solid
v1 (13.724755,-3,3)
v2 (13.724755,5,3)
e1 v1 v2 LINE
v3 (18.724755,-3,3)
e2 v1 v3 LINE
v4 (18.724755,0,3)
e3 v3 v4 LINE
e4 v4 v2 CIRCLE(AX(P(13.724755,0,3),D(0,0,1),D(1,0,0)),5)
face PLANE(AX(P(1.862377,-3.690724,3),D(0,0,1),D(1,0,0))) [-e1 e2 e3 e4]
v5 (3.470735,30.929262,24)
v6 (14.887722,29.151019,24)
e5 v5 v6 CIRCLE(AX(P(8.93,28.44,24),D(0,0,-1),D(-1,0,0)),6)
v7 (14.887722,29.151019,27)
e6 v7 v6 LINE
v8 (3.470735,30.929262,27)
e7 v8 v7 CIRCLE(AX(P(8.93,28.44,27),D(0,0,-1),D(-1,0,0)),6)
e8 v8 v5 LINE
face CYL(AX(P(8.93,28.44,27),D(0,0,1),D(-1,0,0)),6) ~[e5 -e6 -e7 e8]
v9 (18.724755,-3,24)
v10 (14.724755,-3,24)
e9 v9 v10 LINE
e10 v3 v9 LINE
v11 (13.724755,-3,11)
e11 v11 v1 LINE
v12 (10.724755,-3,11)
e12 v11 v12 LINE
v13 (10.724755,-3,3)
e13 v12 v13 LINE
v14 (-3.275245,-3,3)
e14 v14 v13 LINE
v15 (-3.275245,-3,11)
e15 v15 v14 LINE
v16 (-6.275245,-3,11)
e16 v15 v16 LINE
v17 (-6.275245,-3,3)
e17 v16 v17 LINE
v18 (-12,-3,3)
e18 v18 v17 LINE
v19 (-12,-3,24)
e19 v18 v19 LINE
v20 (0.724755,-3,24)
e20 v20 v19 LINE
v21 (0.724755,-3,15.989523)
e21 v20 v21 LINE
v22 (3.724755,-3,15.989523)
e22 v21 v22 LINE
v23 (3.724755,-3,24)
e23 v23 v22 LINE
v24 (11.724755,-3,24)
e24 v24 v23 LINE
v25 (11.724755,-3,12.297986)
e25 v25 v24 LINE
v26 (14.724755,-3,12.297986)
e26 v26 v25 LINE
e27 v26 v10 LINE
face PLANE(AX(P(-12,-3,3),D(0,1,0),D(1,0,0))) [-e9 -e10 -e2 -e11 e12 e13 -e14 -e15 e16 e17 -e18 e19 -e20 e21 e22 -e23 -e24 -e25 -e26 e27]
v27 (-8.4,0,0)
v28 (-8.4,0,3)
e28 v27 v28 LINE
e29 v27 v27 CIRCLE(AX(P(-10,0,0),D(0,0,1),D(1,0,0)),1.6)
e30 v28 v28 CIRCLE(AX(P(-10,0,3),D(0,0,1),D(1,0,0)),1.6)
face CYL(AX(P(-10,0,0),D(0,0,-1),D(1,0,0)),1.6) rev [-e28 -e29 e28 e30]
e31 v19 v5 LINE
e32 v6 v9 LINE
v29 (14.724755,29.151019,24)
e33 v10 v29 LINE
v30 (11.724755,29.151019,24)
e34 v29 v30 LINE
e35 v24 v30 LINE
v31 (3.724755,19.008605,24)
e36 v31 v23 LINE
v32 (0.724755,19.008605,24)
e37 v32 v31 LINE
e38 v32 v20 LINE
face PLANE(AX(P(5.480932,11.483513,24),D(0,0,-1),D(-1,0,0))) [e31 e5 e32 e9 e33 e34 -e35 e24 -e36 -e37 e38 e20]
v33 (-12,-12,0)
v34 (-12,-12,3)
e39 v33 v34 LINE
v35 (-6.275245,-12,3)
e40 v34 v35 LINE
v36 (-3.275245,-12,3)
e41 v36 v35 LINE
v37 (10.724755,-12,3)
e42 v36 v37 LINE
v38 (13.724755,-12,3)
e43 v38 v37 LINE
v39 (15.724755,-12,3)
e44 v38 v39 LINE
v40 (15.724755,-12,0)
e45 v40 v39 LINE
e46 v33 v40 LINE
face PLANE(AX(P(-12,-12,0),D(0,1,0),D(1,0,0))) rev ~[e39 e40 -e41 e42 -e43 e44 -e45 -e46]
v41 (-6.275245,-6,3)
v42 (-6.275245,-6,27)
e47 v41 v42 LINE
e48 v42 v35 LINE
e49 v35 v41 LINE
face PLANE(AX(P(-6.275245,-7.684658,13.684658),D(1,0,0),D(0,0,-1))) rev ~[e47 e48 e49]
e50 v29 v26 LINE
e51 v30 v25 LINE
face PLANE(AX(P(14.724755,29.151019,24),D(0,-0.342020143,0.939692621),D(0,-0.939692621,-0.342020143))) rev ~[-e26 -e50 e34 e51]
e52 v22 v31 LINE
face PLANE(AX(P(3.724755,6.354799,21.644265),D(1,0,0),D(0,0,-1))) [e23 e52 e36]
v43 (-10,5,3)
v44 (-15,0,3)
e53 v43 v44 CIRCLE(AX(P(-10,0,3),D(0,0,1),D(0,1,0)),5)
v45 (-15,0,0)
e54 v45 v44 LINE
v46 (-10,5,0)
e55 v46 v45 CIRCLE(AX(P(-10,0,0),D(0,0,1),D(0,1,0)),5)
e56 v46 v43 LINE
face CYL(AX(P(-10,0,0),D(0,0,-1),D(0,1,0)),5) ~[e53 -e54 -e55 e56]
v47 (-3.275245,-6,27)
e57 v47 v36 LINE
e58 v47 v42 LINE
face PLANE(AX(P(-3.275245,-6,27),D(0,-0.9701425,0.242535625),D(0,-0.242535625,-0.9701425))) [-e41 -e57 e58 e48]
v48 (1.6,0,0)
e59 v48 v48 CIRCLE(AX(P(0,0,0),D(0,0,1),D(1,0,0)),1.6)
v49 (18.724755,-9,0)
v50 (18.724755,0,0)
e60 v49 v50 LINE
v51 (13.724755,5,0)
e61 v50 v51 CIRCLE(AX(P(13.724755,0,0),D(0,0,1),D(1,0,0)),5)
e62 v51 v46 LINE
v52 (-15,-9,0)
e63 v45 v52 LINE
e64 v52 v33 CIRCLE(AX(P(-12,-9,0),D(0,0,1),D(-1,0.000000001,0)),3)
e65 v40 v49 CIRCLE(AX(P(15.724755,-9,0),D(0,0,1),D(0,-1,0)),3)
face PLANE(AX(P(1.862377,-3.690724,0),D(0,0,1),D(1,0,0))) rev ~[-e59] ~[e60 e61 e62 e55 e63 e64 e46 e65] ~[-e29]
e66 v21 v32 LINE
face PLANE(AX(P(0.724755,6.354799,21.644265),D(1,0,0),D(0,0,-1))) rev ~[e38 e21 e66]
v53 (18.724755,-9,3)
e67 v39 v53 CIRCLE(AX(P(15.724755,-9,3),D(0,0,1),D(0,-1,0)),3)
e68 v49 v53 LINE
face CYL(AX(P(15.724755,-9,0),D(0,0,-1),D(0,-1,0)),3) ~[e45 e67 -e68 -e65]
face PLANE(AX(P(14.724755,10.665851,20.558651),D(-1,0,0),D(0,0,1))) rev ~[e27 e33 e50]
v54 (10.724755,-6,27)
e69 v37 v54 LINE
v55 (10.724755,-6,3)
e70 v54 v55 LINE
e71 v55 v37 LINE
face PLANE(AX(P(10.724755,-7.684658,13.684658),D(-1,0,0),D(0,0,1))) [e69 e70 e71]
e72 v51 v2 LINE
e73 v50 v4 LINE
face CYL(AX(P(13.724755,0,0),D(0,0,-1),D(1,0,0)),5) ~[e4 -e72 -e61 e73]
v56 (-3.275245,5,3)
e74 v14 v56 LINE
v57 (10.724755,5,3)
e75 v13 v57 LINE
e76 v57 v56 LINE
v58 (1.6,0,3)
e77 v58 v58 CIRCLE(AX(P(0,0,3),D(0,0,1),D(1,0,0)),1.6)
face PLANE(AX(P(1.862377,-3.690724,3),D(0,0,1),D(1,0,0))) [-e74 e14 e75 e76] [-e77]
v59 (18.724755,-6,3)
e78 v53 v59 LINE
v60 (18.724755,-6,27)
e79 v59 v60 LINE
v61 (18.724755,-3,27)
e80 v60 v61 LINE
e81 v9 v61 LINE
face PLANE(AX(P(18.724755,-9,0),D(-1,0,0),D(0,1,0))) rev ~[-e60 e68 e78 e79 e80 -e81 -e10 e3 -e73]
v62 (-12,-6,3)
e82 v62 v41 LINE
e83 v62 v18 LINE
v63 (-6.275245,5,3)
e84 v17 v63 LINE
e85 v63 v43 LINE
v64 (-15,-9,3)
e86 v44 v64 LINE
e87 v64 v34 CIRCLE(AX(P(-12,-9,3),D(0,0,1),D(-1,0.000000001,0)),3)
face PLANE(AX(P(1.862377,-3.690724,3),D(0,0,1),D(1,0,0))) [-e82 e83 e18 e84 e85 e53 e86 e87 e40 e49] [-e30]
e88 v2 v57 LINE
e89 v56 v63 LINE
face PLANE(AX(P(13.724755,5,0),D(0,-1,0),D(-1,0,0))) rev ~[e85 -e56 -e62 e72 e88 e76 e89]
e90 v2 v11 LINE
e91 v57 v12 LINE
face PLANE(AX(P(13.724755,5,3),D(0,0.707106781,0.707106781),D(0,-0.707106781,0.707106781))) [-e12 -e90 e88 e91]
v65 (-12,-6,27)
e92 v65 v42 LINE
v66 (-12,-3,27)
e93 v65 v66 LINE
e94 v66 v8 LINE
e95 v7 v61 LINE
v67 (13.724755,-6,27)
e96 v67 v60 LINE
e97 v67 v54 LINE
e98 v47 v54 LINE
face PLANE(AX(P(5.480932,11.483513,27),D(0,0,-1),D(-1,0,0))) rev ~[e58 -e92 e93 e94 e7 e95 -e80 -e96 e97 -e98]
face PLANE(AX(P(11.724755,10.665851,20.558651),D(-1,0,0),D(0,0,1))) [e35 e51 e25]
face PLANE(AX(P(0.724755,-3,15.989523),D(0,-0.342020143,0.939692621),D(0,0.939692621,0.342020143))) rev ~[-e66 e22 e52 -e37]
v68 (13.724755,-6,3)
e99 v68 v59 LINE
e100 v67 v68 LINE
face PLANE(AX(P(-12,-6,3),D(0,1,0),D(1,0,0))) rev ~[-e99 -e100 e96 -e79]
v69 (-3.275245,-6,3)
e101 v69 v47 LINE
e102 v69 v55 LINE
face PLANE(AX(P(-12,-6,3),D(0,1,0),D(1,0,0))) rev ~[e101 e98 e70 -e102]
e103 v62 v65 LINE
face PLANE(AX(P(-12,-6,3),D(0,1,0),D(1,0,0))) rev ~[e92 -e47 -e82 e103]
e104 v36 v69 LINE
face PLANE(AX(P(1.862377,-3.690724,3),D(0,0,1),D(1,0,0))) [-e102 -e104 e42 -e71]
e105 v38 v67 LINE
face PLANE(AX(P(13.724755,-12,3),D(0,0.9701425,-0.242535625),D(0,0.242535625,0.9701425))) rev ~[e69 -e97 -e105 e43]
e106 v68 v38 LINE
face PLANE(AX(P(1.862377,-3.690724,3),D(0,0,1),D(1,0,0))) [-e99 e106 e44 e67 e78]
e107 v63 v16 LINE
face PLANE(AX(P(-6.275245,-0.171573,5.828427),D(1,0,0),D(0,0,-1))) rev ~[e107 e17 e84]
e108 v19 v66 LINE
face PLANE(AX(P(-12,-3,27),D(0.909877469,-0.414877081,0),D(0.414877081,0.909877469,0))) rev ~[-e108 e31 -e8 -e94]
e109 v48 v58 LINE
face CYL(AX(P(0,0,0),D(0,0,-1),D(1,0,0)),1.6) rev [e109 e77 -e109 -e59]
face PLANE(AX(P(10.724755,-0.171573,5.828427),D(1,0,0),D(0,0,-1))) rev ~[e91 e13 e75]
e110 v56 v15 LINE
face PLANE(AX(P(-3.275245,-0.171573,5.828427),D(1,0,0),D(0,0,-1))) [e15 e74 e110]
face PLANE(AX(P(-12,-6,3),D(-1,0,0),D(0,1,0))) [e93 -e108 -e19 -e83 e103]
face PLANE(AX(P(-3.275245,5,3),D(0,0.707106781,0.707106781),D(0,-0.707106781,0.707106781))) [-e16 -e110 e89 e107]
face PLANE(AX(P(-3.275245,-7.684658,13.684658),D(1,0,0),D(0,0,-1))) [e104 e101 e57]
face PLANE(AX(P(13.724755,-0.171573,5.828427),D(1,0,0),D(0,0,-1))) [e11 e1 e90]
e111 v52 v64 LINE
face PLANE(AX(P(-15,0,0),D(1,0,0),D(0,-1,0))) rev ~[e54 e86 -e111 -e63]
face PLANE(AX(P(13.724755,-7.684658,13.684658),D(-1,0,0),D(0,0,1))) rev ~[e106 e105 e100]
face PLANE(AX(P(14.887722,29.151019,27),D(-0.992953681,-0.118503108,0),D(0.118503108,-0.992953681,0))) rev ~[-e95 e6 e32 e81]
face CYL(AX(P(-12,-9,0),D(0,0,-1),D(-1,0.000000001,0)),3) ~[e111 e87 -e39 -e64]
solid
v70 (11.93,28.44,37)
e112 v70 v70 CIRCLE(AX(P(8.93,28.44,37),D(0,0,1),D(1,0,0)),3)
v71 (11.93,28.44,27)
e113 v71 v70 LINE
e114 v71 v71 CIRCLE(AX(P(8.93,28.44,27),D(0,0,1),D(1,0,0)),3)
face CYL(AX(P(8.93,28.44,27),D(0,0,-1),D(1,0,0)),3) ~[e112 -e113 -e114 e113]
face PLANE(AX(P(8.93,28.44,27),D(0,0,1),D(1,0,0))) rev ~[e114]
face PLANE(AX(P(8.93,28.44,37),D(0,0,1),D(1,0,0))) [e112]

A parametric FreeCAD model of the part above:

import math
import FreeCAD as App
import Part
import Sketcher

V = App.Vector
Q = App.Units.Quantity


def add_polygon(sketch, points):
    """Adds a closed chain of lines whose ends are joined by coincident constraints."""
    first, n = sketch.GeometryCount, len(points)
    for a, b in zip(points, points[1:] + points[:1]):
        sketch.addGeometry(Part.LineSegment(App.Vector(*a, 0), App.Vector(*b, 0)), False)
    for i in range(n):
        sketch.addConstraint(Sketcher.Constraint("Coincident", first + i, 2, first + (i + 1) % n, 1))

doc = App.newDocument("Part")
params = doc.addObject("Spreadsheet::Sheet", "Params")
for row, (alias, value) in enumerate([
    ("sketch1_radius", "5 mm"),
    ("sketch1_radius2", "3 mm"),
    ("sketch1_diameter", "3.2 mm"),
    ("sketch1_height", "9 mm"),
    ("pad1_length", "3 mm"),
    ("sketch2_height", "3 mm"),
    ("pad2_length", "24 mm"),
    ("sketch3_radius", "6 mm"),
    ("pad3_length", "3 mm"),
    ("pad4_length", "3 mm"),
    ("pad5_length", "3 mm"),
    ("sketch6_width", "8 mm"),
    ("sketch6_width2", "6 mm"),
    ("sketch6_height", "24 mm"),
    ("pad6_length", "3 mm"),
    ("sketch7_width", "6 mm"),
    ("sketch7_width2", "8 mm"),
    ("sketch7_height", "24 mm"),
    ("pad7_length", "3 mm"),
    ("sketch8_diameter", "6 mm"),
    ("pad8_length", "10 mm"),
], start=1):
    params.set(f"A{row}", alias)
    params.set(f"B{row}", "=" + value)
    params.setAlias(f"B{row}", alias)

body = doc.addObject("PartDesign::Body", "Body")

# Sketch on XY plane
sketch1 = body.newObject("Sketcher::SketchObject", "Sketch")
sketch1.AttachmentSupport = (doc.getObject("XY_Plane"), [""])
sketch1.MapMode = "FlatFace"
sketch1.addGeometry([
    Part.ArcOfCircle(Part.Circle(V(-10, 0, 0), V(0, 0, 1), 5), math.radians(90), math.radians(180)),  # 0
    Part.LineSegment(V(-15, 0, 0), V(-15, -9, 0)),  # 1
    Part.ArcOfCircle(Part.Circle(V(-12, -9, 0), V(0, 0, 1), 3), math.radians(180), math.radians(270)),  # 2
    Part.LineSegment(V(-12, -12, 0), V(15.7, -12, 0)),  # 3
    Part.ArcOfCircle(Part.Circle(V(15.7, -9, 0), V(0, 0, 1), 3), math.radians(-90), math.radians(0)),  # 4
    Part.LineSegment(V(18.7, -9, 0), V(18.7, 0, 0)),  # 5
    Part.ArcOfCircle(Part.Circle(V(13.7, 0, 0), V(0, 0, 1), 5), math.radians(0), math.radians(90)),  # 6
    Part.LineSegment(V(13.7, 5, 0), V(-10, 5, 0)),  # 7
    Part.Circle(V(-10, 0, 0), V(0, 0, 1), 1.6),  # 8
    Part.Circle(V(0, 0, 0), V(0, 0, 1), 1.6),  # 9
], False)
sketch1.addConstraint([
    Sketcher.Constraint("Tangent", 0, 2, 1, 1),
    Sketcher.Constraint("Tangent", 1, 2, 2, 1),
    Sketcher.Constraint("Tangent", 2, 2, 3, 1),
    Sketcher.Constraint("Tangent", 3, 2, 4, 1),
    Sketcher.Constraint("Tangent", 4, 2, 5, 1),
    Sketcher.Constraint("Tangent", 5, 2, 6, 1),
    Sketcher.Constraint("Tangent", 6, 2, 7, 1),
    Sketcher.Constraint("Tangent", 7, 2, 0, 1),
    Sketcher.Constraint("Vertical", 1),
    Sketcher.Constraint("Horizontal", 3),
    Sketcher.Constraint("Vertical", 5),
    Sketcher.Constraint("Horizontal", 7),
    Sketcher.Constraint("Coincident", 9, 3, -1, 1),
    Sketcher.Constraint("Coincident", 8, 3, 0, 3),
    Sketcher.Constraint("Equal", 2, 4),
    Sketcher.Constraint("Equal", 0, 6),
    Sketcher.Constraint("Equal", 8, 9),
    Sketcher.Constraint("PointOnObject", 0, 3, -1),
    Sketcher.Constraint("Radius", 0, Q("5 mm")),
    Sketcher.Constraint("Radius", 2, Q("3 mm")),
    Sketcher.Constraint("Diameter", 8, Q("3.2 mm")),
    Sketcher.Constraint("DistanceY", 1, 2, 1, 1, Q("9 mm")),
    Sketcher.Constraint("DistanceX", 0, 3, -1, 1, Q("10 mm")),
    Sketcher.Constraint("DistanceX", 3, 1, 3, 2, Q("27.724755 mm")),
])
sketch1.setExpression("Constraints[18]", "Params.sketch1_radius")
sketch1.setExpression("Constraints[19]", "Params.sketch1_radius2")
sketch1.setExpression("Constraints[20]", "Params.sketch1_diameter")
sketch1.setExpression("Constraints[21]", "Params.sketch1_height")
pad1 = body.newObject("PartDesign::Pad", "Pad")
pad1.Profile = sketch1
pad1.setExpression("Length", "Params.pad1_length")

# Sketch on XY plane
sketch2 = body.newObject("Sketcher::SketchObject", "Sketch001")
sketch2.AttachmentSupport = (doc.getObject("XY_Plane"), [""])
sketch2.MapMode = "FlatFace"
sketch2.AttachmentOffset = App.Placement(V(0, 0, 3), App.Rotation())
add_polygon(sketch2, [(-12, -3), (-12, -6), (18.7, -6), (18.7, -3)])  # lines 0-3
sketch2.addConstraint([
    Sketcher.Constraint("Vertical", 0),
    Sketcher.Constraint("Horizontal", 1),
    Sketcher.Constraint("Vertical", 2),
    Sketcher.Constraint("Horizontal", 3),
    Sketcher.Constraint("DistanceY", 0, 2, 0, 1, Q("3 mm")),
    Sketcher.Constraint("DistanceX", 0, 2, -1, 1, Q("12 mm")),
    Sketcher.Constraint("DistanceY", 0, 2, -1, 1, Q("6 mm")),
    Sketcher.Constraint("DistanceX", 1, 1, 1, 2, Q("30.724755 mm")),
])
sketch2.setExpression("Constraints[8]", "Params.sketch2_height")
pad2 = body.newObject("PartDesign::Pad", "Pad001")
pad2.Profile = sketch2
pad2.setExpression("Length", "Params.pad2_length")

# Sketch on XY plane
sketch3 = body.newObject("Sketcher::SketchObject", "Sketch002")
sketch3.AttachmentSupport = (doc.getObject("XY_Plane"), [""])
sketch3.MapMode = "FlatFace"
sketch3.AttachmentOffset = App.Placement(V(0, 0, 27), App.Rotation())
sketch3.addGeometry([
    Part.LineSegment(V(-12, -3, 0), V(3, 31, 0)),
    Part.ArcOfCircle(Part.Circle(V(9, 28, 0), V(0, 0, 1), 6), math.radians(7), math.radians(155)),
    Part.LineSegment(V(15, 29, 0), V(19, -3, 0)),
    Part.LineSegment(V(19, -3, 0), V(-12, -3, 0)),
], False)
sketch3.addConstraint([
    Sketcher.Constraint("Tangent", 0, 2, 1, 2),
    Sketcher.Constraint("Tangent", 1, 1, 2, 1),
    Sketcher.Constraint("Coincident", 2, 2, 3, 1),
    Sketcher.Constraint("Coincident", 3, 2, 0, 1),
    Sketcher.Constraint("Horizontal", 3),
    Sketcher.Constraint("Radius", 1, Q("6 mm")),
    Sketcher.Constraint("DistanceY", 2, 2, -1, 1, Q("3 mm")),
    Sketcher.Constraint("DistanceX", 3, 2, -1, 1, Q("12 mm")),
    Sketcher.Constraint("DistanceX", -1, 1, 1, 3, Q("8.93 mm")),
    Sketcher.Constraint("DistanceY", -1, 1, 1, 3, Q("28.44 mm")),
    Sketcher.Constraint("DistanceX", 3, 2, 3, 1, Q("30.724755 mm")),
])
sketch3.setExpression("Constraints[5]", "Params.sketch3_radius")
pad3 = body.newObject("PartDesign::Pad", "Pad002")
pad3.Profile = sketch3
pad3.setExpression("Length", "Params.pad3_length")
pad3.Reversed = True

# Sketch on YZ plane
sketch4 = body.newObject("Sketcher::SketchObject", "Sketch003")
sketch4.AttachmentSupport = (doc.getObject("YZ_Plane"), [""])
sketch4.MapMode = "FlatFace"
sketch4.AttachmentOffset = App.Placement(V(0, 0, 14.724755), App.Rotation())
add_polygon(sketch4, [(-3, 12), (29, 24), (-3, 24)])  # lines 0-2
sketch4.addConstraint([
    Sketcher.Constraint("Horizontal", 1),
    Sketcher.Constraint("Vertical", 2),
    Sketcher.Constraint("Angle", 0, Q("20 deg")),
    Sketcher.Constraint("DistanceY", -1, 1, 0, 2, Q("24 mm")),
    Sketcher.Constraint("DistanceX", 1, 2, -1, 1, Q("3 mm")),
    Sketcher.Constraint("Distance", 0, Q("34.214399 mm")),
])
pad4 = body.newObject("PartDesign::Pad", "Pad003")
pad4.Profile = sketch4
pad4.setExpression("Length", "Params.pad4_length")
pad4.Reversed = True

# Sketch on YZ plane
sketch5 = body.newObject("Sketcher::SketchObject", "Sketch004")
sketch5.AttachmentSupport = (doc.getObject("YZ_Plane"), [""])
sketch5.MapMode = "FlatFace"
sketch5.AttachmentOffset = App.Placement(V(0, 0, 0.724755), App.Rotation())
add_polygon(sketch5, [(-3, 16), (19, 24), (-3, 24)])  # lines 0-2
sketch5.addConstraint([
    Sketcher.Constraint("Horizontal", 1),
    Sketcher.Constraint("Vertical", 2),
    Sketcher.Constraint("Angle", 0, Q("20 deg")),
    Sketcher.Constraint("DistanceY", -1, 1, 0, 2, Q("24 mm")),
    Sketcher.Constraint("DistanceX", 1, 2, -1, 1, Q("3 mm")),
    Sketcher.Constraint("DistanceX", 1, 2, 1, 1, Q("22.008605 mm")),
])
pad5 = body.newObject("PartDesign::Pad", "Pad004")
pad5.Profile = sketch5
pad5.setExpression("Length", "Params.pad5_length")

# Sketch on YZ plane
sketch6 = body.newObject("Sketcher::SketchObject", "Sketch005")
sketch6.AttachmentSupport = (doc.getObject("YZ_Plane"), [""])
sketch6.MapMode = "FlatFace"
sketch6.AttachmentOffset = App.Placement(V(0, 0, 13.724755), App.Rotation())
add_polygon(sketch6, [(5, 3), (-3, 11), (-3, 3)])  # lines 0-2
add_polygon(sketch6, [(-6, 27), (-12, 3), (-6, 3)])  # lines 3-5
sketch6.addConstraint([
    Sketcher.Constraint("Vertical", 1),
    Sketcher.Constraint("Horizontal", 2),
    Sketcher.Constraint("Horizontal", 4),
    Sketcher.Constraint("Vertical", 5),
    Sketcher.Constraint("Horizontal", 2, 2, 3, 2),
    Sketcher.Constraint("Equal", 2, 1),
    Sketcher.Constraint("DistanceX", 2, 1, 2, 2, Q("8 mm")),
    Sketcher.Constraint("DistanceX", 4, 1, 4, 2, Q("6 mm")),
    Sketcher.Constraint("DistanceY", 5, 1, 5, 2, Q("24 mm")),
    Sketcher.Constraint("DistanceX", 0, 2, -1, 1, Q("3 mm")),
    Sketcher.Constraint("DistanceY", -1, 1, 0, 2, Q("11 mm")),
    Sketcher.Constraint("DistanceX", 3, 2, -1, 1, Q("12 mm")),
])
sketch6.setExpression("Constraints[12]", "Params.sketch6_width")
sketch6.setExpression("Constraints[13]", "Params.sketch6_width2")
sketch6.setExpression("Constraints[14]", "Params.sketch6_height")
pad6 = body.newObject("PartDesign::Pad", "Pad005")
pad6.Profile = sketch6
pad6.setExpression("Length", "Params.pad6_length")
pad6.Reversed = True

# Sketch on YZ plane
sketch7 = body.newObject("Sketcher::SketchObject", "Sketch006")
sketch7.AttachmentSupport = (doc.getObject("YZ_Plane"), [""])
sketch7.MapMode = "FlatFace"
sketch7.AttachmentOffset = App.Placement(V(0, 0, -3.275245), App.Rotation())
add_polygon(sketch7, [(-6, 27), (-12, 3), (-6, 3)])  # lines 0-2
add_polygon(sketch7, [(5, 3), (-3, 11), (-3, 3)])  # lines 3-5
sketch7.addConstraint([
    Sketcher.Constraint("Horizontal", 1),
    Sketcher.Constraint("Vertical", 2),
    Sketcher.Constraint("Vertical", 4),
    Sketcher.Constraint("Horizontal", 5),
    Sketcher.Constraint("Horizontal", 1, 2, 4, 2),
    Sketcher.Constraint("Equal", 5, 4),
    Sketcher.Constraint("DistanceX", 1, 1, 1, 2, Q("6 mm")),
    Sketcher.Constraint("DistanceX", 5, 1, 5, 2, Q("8 mm")),
    Sketcher.Constraint("DistanceY", 2, 1, 2, 2, Q("24 mm")),
    Sketcher.Constraint("DistanceX", 0, 2, -1, 1, Q("12 mm")),
    Sketcher.Constraint("DistanceY", -1, 1, 0, 2, Q("3 mm")),
    Sketcher.Constraint("DistanceX", 3, 2, -1, 1, Q("3 mm")),
])
sketch7.setExpression("Constraints[12]", "Params.sketch7_width")
sketch7.setExpression("Constraints[13]", "Params.sketch7_width2")
sketch7.setExpression("Constraints[14]", "Params.sketch7_height")
pad7 = body.newObject("PartDesign::Pad", "Pad006")
pad7.Profile = sketch7
pad7.setExpression("Length", "Params.pad7_length")
pad7.Reversed = True
body2 = doc.addObject("PartDesign::Body", "Body001")

# Sketch on XY plane
sketch8 = body2.newObject("Sketcher::SketchObject", "Sketch007")
sketch8.AttachmentSupport = (doc.getObject("XY_Plane001"), [""])
sketch8.MapMode = "FlatFace"
sketch8.AttachmentOffset = App.Placement(V(0, 0, 27), App.Rotation())
sketch8.addGeometry(Part.Circle(V(8.9, 28.4, 0), V(0, 0, 1), 3), False)
sketch8.addConstraint([
    Sketcher.Constraint("Diameter", 0, Q("6 mm")),
    Sketcher.Constraint("DistanceX", -1, 1, 0, 3, Q("8.93 mm")),
    Sketcher.Constraint("DistanceY", -1, 1, 0, 3, Q("28.44 mm")),
])
sketch8.setExpression("Constraints[0]", "Params.sketch8_diameter")
pad8 = body2.newObject("PartDesign::Pad", "Pad007")
pad8.Profile = sketch8
pad8.setExpression("Length", "Params.pad8_length")

doc.recompute()
